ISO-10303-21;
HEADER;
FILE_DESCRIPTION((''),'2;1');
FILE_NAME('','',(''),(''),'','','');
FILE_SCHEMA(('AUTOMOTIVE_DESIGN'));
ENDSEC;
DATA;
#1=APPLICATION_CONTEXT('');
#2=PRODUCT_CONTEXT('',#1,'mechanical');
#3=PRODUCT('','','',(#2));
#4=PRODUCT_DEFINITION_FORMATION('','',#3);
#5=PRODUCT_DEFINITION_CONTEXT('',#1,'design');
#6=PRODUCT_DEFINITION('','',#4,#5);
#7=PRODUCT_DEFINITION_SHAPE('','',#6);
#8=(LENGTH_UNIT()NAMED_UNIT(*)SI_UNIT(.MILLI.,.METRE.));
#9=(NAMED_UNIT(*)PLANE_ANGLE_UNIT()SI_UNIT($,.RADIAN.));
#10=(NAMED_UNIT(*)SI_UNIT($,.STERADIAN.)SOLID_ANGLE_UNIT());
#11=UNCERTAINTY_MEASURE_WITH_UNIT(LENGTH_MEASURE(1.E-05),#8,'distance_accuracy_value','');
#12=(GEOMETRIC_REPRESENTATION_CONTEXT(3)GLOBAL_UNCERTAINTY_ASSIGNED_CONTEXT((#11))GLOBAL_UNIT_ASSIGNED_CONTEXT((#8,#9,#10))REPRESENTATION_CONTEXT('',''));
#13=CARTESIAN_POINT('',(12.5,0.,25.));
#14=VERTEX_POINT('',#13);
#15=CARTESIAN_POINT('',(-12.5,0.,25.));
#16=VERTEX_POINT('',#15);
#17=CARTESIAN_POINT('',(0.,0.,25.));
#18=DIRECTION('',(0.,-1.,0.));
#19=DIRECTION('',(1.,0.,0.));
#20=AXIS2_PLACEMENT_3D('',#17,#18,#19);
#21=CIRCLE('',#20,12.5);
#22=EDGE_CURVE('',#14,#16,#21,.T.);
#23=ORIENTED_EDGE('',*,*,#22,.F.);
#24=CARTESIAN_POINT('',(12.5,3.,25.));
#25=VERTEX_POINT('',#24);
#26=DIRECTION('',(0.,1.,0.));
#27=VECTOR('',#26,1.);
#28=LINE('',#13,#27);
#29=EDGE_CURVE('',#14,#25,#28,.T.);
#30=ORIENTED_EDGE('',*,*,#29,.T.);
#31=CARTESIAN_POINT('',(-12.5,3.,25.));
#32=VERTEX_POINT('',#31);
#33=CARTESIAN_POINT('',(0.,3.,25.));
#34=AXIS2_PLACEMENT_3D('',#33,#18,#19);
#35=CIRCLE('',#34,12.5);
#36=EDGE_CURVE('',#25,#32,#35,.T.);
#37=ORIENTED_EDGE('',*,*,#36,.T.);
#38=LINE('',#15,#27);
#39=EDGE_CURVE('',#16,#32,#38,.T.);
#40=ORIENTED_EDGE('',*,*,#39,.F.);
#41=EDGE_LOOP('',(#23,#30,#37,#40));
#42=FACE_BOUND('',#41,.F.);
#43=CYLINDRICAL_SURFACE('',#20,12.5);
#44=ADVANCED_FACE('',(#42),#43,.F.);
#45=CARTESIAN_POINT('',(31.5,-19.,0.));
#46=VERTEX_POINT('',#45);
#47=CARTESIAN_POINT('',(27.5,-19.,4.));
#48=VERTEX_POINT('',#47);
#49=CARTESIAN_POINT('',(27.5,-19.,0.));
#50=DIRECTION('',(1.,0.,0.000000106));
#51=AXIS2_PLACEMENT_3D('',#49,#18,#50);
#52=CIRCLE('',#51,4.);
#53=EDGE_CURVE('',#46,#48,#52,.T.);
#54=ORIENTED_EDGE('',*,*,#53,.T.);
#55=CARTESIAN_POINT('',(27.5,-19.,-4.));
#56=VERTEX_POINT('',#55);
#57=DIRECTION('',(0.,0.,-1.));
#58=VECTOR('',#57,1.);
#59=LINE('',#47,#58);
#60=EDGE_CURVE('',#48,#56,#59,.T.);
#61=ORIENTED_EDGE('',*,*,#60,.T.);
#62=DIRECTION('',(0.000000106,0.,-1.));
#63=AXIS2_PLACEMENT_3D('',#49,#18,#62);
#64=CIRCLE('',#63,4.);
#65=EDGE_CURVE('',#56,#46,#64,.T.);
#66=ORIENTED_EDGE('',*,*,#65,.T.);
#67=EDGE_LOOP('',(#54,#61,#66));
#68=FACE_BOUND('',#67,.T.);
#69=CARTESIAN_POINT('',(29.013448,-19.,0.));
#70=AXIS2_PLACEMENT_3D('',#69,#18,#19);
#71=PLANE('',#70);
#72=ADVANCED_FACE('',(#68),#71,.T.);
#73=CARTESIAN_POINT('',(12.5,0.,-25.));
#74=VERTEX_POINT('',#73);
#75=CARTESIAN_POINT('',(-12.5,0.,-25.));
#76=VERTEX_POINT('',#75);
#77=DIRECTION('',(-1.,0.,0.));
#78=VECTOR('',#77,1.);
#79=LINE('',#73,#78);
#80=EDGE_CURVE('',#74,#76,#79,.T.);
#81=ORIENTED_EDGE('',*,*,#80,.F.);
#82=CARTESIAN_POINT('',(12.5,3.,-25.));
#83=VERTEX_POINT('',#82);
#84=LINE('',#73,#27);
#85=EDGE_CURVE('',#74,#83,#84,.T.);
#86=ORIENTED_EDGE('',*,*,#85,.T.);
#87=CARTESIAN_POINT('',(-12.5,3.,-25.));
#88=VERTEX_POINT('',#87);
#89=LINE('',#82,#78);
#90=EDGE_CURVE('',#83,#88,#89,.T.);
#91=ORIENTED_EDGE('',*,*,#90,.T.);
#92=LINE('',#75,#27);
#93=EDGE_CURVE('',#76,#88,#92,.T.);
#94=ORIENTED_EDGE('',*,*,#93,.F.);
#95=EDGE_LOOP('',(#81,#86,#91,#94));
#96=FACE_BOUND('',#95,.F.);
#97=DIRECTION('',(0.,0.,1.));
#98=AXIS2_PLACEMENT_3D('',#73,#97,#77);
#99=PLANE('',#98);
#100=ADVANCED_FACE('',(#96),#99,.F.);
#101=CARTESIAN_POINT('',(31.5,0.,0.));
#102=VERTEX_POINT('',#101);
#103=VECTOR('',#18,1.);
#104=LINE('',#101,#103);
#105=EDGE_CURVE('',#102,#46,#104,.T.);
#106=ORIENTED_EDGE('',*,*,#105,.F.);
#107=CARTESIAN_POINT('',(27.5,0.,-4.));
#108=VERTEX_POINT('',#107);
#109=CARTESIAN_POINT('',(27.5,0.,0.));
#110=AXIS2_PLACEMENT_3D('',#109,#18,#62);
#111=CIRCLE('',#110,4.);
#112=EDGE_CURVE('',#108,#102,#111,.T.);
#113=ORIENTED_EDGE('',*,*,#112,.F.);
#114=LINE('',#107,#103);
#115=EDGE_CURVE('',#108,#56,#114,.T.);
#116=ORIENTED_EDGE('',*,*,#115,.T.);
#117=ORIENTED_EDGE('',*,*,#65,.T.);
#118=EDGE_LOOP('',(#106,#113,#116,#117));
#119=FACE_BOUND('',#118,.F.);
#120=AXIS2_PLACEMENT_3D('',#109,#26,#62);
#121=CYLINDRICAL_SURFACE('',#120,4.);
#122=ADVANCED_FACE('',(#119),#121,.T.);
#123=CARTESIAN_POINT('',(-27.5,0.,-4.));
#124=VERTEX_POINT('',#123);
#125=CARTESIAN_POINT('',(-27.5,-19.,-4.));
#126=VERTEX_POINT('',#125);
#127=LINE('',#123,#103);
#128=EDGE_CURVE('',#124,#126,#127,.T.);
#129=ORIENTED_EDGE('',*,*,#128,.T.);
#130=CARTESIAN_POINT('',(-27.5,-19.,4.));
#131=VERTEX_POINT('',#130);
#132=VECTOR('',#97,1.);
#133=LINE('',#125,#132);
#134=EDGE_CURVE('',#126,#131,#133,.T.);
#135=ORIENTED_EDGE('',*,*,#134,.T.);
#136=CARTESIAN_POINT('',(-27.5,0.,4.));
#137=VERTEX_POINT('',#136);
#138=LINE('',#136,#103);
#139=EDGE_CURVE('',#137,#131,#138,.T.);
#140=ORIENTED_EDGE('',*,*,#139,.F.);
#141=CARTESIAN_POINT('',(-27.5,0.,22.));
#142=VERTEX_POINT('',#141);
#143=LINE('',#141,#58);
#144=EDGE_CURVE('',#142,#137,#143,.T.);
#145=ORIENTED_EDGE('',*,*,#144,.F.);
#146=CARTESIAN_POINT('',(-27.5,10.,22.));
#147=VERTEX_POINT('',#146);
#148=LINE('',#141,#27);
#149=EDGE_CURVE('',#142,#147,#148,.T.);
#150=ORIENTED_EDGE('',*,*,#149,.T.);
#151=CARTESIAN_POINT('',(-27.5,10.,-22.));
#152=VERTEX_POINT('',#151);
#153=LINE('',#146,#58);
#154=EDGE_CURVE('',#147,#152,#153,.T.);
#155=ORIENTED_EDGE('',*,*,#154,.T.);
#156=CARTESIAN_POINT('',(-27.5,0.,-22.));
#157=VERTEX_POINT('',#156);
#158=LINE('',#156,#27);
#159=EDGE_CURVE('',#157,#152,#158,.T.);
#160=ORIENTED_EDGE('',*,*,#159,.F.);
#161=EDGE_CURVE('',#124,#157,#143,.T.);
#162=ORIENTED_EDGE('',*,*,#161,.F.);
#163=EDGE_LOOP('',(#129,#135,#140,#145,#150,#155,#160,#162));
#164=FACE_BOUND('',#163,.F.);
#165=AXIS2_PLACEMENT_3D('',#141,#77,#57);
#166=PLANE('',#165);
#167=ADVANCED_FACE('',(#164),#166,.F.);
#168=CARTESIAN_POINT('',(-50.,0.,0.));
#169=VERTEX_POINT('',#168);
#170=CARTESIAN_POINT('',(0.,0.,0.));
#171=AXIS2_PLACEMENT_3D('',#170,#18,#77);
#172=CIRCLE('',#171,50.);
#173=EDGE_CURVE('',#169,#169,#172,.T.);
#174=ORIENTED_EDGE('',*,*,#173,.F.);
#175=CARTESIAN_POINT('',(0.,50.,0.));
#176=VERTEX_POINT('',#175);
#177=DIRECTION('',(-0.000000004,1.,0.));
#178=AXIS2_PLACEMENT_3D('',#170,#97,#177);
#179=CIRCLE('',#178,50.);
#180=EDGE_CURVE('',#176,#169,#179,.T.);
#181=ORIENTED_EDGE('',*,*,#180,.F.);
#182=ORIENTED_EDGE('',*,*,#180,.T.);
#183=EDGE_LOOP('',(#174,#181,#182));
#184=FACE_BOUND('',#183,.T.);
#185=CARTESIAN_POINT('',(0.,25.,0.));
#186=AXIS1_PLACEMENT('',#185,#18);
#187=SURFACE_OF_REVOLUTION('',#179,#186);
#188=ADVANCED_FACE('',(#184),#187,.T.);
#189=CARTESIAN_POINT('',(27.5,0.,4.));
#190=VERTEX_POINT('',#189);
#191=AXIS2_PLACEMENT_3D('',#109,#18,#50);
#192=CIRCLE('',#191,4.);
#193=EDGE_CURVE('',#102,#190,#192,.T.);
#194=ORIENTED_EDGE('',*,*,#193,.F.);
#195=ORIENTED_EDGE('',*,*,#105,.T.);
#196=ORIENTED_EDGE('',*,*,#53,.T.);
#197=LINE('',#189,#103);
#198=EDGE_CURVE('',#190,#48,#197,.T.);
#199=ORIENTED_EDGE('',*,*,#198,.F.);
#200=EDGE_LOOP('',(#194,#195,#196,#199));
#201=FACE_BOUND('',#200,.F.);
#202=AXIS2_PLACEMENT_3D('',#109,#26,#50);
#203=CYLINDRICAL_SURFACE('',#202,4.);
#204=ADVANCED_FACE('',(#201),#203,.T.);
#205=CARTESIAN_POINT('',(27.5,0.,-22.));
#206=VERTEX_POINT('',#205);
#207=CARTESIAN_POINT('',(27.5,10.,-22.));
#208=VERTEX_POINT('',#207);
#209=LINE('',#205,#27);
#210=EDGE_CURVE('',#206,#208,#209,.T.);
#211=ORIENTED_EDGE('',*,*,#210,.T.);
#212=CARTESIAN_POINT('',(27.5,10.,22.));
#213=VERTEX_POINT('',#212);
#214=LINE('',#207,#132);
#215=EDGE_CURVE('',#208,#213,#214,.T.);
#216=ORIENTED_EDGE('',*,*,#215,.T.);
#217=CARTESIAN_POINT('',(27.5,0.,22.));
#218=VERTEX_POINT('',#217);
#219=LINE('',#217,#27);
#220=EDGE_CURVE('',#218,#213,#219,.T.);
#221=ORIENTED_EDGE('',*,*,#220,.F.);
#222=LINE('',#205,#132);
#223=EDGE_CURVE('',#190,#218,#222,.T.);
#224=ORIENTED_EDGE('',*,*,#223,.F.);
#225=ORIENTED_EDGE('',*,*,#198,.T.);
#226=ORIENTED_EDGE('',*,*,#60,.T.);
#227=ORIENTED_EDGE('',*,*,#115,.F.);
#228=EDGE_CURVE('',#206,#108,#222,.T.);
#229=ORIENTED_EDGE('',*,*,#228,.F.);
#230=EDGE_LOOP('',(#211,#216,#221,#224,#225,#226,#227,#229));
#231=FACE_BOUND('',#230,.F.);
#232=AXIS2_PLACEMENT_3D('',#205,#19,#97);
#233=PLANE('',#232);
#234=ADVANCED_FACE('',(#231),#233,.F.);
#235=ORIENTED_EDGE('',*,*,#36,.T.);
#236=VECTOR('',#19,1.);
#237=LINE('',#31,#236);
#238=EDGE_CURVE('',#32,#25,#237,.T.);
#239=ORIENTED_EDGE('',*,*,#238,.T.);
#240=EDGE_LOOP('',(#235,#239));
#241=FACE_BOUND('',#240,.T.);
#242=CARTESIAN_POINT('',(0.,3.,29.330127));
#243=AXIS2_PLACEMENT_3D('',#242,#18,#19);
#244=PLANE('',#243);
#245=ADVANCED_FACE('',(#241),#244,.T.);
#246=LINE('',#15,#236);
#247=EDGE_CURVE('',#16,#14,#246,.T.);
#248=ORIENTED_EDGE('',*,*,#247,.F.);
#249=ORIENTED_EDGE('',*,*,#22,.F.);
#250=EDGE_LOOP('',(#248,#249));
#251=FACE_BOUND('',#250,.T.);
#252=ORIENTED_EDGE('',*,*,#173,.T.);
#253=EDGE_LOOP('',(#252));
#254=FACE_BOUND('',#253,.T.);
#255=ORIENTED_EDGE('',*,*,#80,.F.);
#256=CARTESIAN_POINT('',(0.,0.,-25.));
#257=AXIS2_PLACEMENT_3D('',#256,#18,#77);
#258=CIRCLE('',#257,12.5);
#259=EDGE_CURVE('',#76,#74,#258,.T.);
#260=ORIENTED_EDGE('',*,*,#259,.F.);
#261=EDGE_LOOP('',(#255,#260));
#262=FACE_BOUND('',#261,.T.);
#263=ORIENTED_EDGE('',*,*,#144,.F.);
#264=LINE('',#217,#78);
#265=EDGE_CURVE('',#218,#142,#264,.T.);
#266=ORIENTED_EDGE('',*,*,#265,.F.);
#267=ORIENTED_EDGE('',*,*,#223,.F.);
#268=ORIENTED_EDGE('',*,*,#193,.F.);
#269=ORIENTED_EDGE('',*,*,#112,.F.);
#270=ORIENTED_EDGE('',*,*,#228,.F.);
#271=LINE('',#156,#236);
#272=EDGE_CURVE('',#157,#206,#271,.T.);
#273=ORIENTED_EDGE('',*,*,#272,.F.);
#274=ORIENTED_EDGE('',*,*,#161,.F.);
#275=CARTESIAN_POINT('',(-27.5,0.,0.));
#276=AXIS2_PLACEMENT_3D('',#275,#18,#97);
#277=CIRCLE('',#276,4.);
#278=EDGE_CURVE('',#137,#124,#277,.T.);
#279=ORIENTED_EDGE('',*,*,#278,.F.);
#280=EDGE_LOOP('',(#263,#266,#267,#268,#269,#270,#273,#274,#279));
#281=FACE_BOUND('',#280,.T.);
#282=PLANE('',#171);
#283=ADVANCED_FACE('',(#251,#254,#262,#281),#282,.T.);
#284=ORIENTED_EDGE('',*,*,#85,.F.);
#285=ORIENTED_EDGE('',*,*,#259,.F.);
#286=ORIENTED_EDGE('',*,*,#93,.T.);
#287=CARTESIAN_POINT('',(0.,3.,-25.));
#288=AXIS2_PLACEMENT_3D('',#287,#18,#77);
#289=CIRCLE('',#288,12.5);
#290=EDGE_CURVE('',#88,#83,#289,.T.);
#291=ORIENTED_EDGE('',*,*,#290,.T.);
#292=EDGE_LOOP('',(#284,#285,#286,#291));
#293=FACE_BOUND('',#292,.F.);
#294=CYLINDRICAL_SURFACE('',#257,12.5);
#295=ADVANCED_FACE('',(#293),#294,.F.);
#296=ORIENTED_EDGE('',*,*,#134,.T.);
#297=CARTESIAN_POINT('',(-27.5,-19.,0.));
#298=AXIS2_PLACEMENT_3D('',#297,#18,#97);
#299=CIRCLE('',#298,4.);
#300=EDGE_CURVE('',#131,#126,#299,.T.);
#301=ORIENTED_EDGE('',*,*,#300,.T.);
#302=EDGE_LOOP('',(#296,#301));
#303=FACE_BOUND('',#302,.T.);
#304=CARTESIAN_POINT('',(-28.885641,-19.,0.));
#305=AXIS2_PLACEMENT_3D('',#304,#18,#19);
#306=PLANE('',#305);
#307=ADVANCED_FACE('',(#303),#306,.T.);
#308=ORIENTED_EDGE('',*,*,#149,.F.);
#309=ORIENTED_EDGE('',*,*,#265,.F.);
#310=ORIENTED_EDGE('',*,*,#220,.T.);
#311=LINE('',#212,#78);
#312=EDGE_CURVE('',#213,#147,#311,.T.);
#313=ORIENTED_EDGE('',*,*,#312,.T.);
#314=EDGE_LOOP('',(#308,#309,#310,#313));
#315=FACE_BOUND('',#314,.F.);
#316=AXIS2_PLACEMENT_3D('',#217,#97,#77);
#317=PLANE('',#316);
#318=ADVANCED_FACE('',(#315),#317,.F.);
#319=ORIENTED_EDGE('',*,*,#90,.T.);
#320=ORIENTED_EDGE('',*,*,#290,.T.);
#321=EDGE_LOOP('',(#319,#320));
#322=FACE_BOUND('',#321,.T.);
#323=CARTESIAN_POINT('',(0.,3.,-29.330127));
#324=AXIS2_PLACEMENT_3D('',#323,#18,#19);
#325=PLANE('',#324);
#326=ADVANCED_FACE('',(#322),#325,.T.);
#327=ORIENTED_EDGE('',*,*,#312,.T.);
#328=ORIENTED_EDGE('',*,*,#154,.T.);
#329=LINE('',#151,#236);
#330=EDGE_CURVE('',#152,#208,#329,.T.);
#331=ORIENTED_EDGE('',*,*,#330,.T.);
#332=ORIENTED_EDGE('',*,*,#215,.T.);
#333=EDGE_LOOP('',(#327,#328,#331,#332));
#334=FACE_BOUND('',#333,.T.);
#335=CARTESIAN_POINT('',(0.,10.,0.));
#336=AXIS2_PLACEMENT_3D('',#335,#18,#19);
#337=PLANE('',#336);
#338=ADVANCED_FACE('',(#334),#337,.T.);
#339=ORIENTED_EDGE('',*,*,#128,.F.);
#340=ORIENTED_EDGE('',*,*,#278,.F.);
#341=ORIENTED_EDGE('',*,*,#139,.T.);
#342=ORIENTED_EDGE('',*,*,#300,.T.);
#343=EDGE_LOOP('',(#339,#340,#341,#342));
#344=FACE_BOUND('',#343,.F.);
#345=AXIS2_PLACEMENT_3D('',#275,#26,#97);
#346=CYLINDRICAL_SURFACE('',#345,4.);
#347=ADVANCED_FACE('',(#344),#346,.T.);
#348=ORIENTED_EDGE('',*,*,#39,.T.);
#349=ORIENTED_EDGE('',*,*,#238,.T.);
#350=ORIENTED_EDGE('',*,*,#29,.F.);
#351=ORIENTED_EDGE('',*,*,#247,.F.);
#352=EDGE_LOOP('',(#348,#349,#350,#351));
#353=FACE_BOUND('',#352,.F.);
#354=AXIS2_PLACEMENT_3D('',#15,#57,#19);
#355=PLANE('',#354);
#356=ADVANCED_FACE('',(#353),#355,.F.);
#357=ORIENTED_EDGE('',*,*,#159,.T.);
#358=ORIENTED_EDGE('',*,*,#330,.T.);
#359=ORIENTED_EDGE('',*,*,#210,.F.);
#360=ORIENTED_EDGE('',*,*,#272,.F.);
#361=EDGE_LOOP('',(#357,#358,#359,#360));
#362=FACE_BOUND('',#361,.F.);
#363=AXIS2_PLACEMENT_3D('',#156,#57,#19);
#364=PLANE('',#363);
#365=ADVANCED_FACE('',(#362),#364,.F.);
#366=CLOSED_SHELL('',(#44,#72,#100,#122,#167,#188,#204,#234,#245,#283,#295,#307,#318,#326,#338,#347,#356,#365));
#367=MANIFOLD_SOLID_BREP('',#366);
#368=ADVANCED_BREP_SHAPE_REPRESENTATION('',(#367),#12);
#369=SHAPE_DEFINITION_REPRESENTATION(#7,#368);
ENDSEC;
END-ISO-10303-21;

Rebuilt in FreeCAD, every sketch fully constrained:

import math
import FreeCAD as App
import Part
import Sketcher

V = App.Vector
Q = App.Units.Quantity

doc = App.newDocument("Part")
body = doc.addObject("PartDesign::Body", "Body")

# Sketch on XY plane
sketch1 = body.newObject("Sketcher::SketchObject", "Sketch")
sketch1.AttachmentSupport = (doc.getObject("XY_Plane"), [""])
sketch1.MapMode = "FlatFace"
sketch1.addGeometry([
    Part.LineSegment(V(0, 0, 0), V(0, 50, 0)),
    Part.ArcOfCircle(Part.Circle(V(0, 0, 0), V(0, 0, 1), 50), math.radians(90), math.radians(180)),
    Part.LineSegment(V(-50, 0, 0), V(0, 0, 0)),
], False)
sketch1.addConstraint([
    Sketcher.Constraint("Coincident", 0, 2, 1, 1),
    Sketcher.Constraint("Coincident", 1, 2, 2, 1),
    Sketcher.Constraint("Coincident", 2, 2, 0, 1),
    Sketcher.Constraint("Vertical", 0),
    Sketcher.Constraint("Horizontal", 2),
    Sketcher.Constraint("Coincident", 1, 3, -1, 1),
    Sketcher.Constraint("Coincident", 2, 2, -1, 1),
    Sketcher.Constraint("Radius", 1, Q("50 mm")),
])
revolution = body.newObject("PartDesign::Revolution", "Revolution")
revolution.Profile = sketch1
revolution.ReferenceAxis = (sketch1, ["V_Axis"])
revolution.Angle = 360

# Sketch on XZ plane
sketch2 = body.newObject("Sketcher::SketchObject", "Sketch001")
sketch2.AttachmentSupport = (doc.getObject("XZ_Plane"), [""])
sketch2.MapMode = "FlatFace"
sketch2.addGeometry([
    Part.LineSegment(V(28, 22, 0), V(-28, 22, 0)),
    Part.LineSegment(V(-28, 22, 0), V(-28, -22, 0)),
    Part.LineSegment(V(-28, -22, 0), V(28, -22, 0)),
    Part.LineSegment(V(28, -22, 0), V(28, 22, 0)),
], False)
sketch2.addConstraint([
    Sketcher.Constraint("Coincident", 0, 2, 1, 1),
    Sketcher.Constraint("Coincident", 1, 2, 2, 1),
    Sketcher.Constraint("Coincident", 2, 2, 3, 1),
    Sketcher.Constraint("Coincident", 3, 2, 0, 1),
    Sketcher.Constraint("Horizontal", 0),
    Sketcher.Constraint("Vertical", 1),
    Sketcher.Constraint("Horizontal", 2),
    Sketcher.Constraint("Vertical", 3),
    Sketcher.Constraint("Symmetric", 0, 2, 2, 2, -1, 1),
    Sketcher.Constraint("DistanceX", 0, 2, 0, 1, Q("55 mm")),
    Sketcher.Constraint("DistanceY", 1, 2, 1, 1, Q("44 mm")),
])
pocket1 = body.newObject("PartDesign::Pocket", "Pocket")
pocket1.Profile = sketch2
pocket1.Length = 10

# Sketch on XZ plane
sketch3 = body.newObject("Sketcher::SketchObject", "Sketch002")
sketch3.AttachmentSupport = (doc.getObject("XZ_Plane"), [""])
sketch3.MapMode = "FlatFace"
sketch3.addGeometry([
    Part.LineSegment(V(12, -25, 0), V(-12, -25, 0)),
    Part.ArcOfCircle(Part.Circle(V(0, -25, 0), V(0, 0, 1), 12), math.radians(180), math.radians(360)),
    Part.LineSegment(V(-12, 25, 0), V(12, 25, 0)),
    Part.ArcOfCircle(Part.Circle(V(0, 25, 0), V(0, 0, 1), 12), math.radians(0), math.radians(180)),
], False)
sketch3.addConstraint([
    Sketcher.Constraint("Coincident", 0, 1, 1, 2),
    Sketcher.Constraint("Coincident", 1, 1, 0, 2),
    Sketcher.Constraint("Coincident", 2, 1, 3, 2),
    Sketcher.Constraint("Coincident", 3, 1, 2, 2),
    Sketcher.Constraint("Horizontal", 0),
    Sketcher.Constraint("Horizontal", 2),
    Sketcher.Constraint("Equal", 1, 3),
    Sketcher.Constraint("Symmetric", 1, 3, 3, 3, -1, 1),
    Sketcher.Constraint("Symmetric", 1, 1, 2, 1, -1),
    Sketcher.Constraint("Horizontal", 1, 3, 0, 1),
    Sketcher.Constraint("Radius", 1, Q("12.5 mm")),
    Sketcher.Constraint("DistanceY", 1, 3, -1, 1, Q("25 mm")),
])
pocket2 = body.newObject("PartDesign::Pocket", "Pocket001")
pocket2.Profile = sketch3
pocket2.Length = 3

# Sketch on XZ plane
sketch4 = body.newObject("Sketcher::SketchObject", "Sketch003")
sketch4.AttachmentSupport = (doc.getObject("XZ_Plane"), [""])
sketch4.MapMode = "FlatFace"
sketch4.addGeometry([
    Part.ArcOfCircle(Part.Circle(V(-27.5, 0, 0), V(0, 0, 1), 4), math.radians(90), math.radians(270)),  # 0
    Part.LineSegment(V(-27.5, -4, 0), V(-27.5, 4, 0)),  # 1
    Part.ArcOfCircle(Part.Circle(V(27.5, 0, 0), V(0, 0, 1), 4), math.radians(0), math.radians(90)),  # 2
    Part.LineSegment(V(27.5, 4, 0), V(27.5, -4, 0)),  # 3
    Part.ArcOfCircle(Part.Circle(V(27.5, 0, 0), V(0, 0, 1), 4), math.radians(-90), math.radians(0)),  # 4
], False)
sketch4.addConstraint([
    Sketcher.Constraint("Coincident", 0, 1, 1, 2),
    Sketcher.Constraint("Coincident", 1, 1, 0, 2),
    Sketcher.Constraint("Coincident", 2, 2, 3, 1),
    Sketcher.Constraint("Coincident", 3, 2, 4, 1),
    Sketcher.Constraint("Tangent", 4, 2, 2, 1),
    Sketcher.Constraint("Vertical", 1),
    Sketcher.Constraint("Vertical", 3),
    Sketcher.Constraint("Equal", 0, 2),
    Sketcher.Constraint("Equal", 2, 4),
    Sketcher.Constraint("Symmetric", 0, 3, 2, 3, -1, 1),
    Sketcher.Constraint("Symmetric", 0, 1, 2, 2, -2),
    Sketcher.Constraint("PointOnObject", 4, 2, -1),
    Sketcher.Constraint("Vertical", 4, 3, 2, 2),
    Sketcher.Constraint("Radius", 0, Q("4 mm")),
    Sketcher.Constraint("DistanceX", 0, 3, 2, 3, Q("55 mm")),
])
pad1 = body.newObject("PartDesign::Pad", "Pad")
pad1.Profile = sketch4
pad1.Length = 19

doc.recompute()
